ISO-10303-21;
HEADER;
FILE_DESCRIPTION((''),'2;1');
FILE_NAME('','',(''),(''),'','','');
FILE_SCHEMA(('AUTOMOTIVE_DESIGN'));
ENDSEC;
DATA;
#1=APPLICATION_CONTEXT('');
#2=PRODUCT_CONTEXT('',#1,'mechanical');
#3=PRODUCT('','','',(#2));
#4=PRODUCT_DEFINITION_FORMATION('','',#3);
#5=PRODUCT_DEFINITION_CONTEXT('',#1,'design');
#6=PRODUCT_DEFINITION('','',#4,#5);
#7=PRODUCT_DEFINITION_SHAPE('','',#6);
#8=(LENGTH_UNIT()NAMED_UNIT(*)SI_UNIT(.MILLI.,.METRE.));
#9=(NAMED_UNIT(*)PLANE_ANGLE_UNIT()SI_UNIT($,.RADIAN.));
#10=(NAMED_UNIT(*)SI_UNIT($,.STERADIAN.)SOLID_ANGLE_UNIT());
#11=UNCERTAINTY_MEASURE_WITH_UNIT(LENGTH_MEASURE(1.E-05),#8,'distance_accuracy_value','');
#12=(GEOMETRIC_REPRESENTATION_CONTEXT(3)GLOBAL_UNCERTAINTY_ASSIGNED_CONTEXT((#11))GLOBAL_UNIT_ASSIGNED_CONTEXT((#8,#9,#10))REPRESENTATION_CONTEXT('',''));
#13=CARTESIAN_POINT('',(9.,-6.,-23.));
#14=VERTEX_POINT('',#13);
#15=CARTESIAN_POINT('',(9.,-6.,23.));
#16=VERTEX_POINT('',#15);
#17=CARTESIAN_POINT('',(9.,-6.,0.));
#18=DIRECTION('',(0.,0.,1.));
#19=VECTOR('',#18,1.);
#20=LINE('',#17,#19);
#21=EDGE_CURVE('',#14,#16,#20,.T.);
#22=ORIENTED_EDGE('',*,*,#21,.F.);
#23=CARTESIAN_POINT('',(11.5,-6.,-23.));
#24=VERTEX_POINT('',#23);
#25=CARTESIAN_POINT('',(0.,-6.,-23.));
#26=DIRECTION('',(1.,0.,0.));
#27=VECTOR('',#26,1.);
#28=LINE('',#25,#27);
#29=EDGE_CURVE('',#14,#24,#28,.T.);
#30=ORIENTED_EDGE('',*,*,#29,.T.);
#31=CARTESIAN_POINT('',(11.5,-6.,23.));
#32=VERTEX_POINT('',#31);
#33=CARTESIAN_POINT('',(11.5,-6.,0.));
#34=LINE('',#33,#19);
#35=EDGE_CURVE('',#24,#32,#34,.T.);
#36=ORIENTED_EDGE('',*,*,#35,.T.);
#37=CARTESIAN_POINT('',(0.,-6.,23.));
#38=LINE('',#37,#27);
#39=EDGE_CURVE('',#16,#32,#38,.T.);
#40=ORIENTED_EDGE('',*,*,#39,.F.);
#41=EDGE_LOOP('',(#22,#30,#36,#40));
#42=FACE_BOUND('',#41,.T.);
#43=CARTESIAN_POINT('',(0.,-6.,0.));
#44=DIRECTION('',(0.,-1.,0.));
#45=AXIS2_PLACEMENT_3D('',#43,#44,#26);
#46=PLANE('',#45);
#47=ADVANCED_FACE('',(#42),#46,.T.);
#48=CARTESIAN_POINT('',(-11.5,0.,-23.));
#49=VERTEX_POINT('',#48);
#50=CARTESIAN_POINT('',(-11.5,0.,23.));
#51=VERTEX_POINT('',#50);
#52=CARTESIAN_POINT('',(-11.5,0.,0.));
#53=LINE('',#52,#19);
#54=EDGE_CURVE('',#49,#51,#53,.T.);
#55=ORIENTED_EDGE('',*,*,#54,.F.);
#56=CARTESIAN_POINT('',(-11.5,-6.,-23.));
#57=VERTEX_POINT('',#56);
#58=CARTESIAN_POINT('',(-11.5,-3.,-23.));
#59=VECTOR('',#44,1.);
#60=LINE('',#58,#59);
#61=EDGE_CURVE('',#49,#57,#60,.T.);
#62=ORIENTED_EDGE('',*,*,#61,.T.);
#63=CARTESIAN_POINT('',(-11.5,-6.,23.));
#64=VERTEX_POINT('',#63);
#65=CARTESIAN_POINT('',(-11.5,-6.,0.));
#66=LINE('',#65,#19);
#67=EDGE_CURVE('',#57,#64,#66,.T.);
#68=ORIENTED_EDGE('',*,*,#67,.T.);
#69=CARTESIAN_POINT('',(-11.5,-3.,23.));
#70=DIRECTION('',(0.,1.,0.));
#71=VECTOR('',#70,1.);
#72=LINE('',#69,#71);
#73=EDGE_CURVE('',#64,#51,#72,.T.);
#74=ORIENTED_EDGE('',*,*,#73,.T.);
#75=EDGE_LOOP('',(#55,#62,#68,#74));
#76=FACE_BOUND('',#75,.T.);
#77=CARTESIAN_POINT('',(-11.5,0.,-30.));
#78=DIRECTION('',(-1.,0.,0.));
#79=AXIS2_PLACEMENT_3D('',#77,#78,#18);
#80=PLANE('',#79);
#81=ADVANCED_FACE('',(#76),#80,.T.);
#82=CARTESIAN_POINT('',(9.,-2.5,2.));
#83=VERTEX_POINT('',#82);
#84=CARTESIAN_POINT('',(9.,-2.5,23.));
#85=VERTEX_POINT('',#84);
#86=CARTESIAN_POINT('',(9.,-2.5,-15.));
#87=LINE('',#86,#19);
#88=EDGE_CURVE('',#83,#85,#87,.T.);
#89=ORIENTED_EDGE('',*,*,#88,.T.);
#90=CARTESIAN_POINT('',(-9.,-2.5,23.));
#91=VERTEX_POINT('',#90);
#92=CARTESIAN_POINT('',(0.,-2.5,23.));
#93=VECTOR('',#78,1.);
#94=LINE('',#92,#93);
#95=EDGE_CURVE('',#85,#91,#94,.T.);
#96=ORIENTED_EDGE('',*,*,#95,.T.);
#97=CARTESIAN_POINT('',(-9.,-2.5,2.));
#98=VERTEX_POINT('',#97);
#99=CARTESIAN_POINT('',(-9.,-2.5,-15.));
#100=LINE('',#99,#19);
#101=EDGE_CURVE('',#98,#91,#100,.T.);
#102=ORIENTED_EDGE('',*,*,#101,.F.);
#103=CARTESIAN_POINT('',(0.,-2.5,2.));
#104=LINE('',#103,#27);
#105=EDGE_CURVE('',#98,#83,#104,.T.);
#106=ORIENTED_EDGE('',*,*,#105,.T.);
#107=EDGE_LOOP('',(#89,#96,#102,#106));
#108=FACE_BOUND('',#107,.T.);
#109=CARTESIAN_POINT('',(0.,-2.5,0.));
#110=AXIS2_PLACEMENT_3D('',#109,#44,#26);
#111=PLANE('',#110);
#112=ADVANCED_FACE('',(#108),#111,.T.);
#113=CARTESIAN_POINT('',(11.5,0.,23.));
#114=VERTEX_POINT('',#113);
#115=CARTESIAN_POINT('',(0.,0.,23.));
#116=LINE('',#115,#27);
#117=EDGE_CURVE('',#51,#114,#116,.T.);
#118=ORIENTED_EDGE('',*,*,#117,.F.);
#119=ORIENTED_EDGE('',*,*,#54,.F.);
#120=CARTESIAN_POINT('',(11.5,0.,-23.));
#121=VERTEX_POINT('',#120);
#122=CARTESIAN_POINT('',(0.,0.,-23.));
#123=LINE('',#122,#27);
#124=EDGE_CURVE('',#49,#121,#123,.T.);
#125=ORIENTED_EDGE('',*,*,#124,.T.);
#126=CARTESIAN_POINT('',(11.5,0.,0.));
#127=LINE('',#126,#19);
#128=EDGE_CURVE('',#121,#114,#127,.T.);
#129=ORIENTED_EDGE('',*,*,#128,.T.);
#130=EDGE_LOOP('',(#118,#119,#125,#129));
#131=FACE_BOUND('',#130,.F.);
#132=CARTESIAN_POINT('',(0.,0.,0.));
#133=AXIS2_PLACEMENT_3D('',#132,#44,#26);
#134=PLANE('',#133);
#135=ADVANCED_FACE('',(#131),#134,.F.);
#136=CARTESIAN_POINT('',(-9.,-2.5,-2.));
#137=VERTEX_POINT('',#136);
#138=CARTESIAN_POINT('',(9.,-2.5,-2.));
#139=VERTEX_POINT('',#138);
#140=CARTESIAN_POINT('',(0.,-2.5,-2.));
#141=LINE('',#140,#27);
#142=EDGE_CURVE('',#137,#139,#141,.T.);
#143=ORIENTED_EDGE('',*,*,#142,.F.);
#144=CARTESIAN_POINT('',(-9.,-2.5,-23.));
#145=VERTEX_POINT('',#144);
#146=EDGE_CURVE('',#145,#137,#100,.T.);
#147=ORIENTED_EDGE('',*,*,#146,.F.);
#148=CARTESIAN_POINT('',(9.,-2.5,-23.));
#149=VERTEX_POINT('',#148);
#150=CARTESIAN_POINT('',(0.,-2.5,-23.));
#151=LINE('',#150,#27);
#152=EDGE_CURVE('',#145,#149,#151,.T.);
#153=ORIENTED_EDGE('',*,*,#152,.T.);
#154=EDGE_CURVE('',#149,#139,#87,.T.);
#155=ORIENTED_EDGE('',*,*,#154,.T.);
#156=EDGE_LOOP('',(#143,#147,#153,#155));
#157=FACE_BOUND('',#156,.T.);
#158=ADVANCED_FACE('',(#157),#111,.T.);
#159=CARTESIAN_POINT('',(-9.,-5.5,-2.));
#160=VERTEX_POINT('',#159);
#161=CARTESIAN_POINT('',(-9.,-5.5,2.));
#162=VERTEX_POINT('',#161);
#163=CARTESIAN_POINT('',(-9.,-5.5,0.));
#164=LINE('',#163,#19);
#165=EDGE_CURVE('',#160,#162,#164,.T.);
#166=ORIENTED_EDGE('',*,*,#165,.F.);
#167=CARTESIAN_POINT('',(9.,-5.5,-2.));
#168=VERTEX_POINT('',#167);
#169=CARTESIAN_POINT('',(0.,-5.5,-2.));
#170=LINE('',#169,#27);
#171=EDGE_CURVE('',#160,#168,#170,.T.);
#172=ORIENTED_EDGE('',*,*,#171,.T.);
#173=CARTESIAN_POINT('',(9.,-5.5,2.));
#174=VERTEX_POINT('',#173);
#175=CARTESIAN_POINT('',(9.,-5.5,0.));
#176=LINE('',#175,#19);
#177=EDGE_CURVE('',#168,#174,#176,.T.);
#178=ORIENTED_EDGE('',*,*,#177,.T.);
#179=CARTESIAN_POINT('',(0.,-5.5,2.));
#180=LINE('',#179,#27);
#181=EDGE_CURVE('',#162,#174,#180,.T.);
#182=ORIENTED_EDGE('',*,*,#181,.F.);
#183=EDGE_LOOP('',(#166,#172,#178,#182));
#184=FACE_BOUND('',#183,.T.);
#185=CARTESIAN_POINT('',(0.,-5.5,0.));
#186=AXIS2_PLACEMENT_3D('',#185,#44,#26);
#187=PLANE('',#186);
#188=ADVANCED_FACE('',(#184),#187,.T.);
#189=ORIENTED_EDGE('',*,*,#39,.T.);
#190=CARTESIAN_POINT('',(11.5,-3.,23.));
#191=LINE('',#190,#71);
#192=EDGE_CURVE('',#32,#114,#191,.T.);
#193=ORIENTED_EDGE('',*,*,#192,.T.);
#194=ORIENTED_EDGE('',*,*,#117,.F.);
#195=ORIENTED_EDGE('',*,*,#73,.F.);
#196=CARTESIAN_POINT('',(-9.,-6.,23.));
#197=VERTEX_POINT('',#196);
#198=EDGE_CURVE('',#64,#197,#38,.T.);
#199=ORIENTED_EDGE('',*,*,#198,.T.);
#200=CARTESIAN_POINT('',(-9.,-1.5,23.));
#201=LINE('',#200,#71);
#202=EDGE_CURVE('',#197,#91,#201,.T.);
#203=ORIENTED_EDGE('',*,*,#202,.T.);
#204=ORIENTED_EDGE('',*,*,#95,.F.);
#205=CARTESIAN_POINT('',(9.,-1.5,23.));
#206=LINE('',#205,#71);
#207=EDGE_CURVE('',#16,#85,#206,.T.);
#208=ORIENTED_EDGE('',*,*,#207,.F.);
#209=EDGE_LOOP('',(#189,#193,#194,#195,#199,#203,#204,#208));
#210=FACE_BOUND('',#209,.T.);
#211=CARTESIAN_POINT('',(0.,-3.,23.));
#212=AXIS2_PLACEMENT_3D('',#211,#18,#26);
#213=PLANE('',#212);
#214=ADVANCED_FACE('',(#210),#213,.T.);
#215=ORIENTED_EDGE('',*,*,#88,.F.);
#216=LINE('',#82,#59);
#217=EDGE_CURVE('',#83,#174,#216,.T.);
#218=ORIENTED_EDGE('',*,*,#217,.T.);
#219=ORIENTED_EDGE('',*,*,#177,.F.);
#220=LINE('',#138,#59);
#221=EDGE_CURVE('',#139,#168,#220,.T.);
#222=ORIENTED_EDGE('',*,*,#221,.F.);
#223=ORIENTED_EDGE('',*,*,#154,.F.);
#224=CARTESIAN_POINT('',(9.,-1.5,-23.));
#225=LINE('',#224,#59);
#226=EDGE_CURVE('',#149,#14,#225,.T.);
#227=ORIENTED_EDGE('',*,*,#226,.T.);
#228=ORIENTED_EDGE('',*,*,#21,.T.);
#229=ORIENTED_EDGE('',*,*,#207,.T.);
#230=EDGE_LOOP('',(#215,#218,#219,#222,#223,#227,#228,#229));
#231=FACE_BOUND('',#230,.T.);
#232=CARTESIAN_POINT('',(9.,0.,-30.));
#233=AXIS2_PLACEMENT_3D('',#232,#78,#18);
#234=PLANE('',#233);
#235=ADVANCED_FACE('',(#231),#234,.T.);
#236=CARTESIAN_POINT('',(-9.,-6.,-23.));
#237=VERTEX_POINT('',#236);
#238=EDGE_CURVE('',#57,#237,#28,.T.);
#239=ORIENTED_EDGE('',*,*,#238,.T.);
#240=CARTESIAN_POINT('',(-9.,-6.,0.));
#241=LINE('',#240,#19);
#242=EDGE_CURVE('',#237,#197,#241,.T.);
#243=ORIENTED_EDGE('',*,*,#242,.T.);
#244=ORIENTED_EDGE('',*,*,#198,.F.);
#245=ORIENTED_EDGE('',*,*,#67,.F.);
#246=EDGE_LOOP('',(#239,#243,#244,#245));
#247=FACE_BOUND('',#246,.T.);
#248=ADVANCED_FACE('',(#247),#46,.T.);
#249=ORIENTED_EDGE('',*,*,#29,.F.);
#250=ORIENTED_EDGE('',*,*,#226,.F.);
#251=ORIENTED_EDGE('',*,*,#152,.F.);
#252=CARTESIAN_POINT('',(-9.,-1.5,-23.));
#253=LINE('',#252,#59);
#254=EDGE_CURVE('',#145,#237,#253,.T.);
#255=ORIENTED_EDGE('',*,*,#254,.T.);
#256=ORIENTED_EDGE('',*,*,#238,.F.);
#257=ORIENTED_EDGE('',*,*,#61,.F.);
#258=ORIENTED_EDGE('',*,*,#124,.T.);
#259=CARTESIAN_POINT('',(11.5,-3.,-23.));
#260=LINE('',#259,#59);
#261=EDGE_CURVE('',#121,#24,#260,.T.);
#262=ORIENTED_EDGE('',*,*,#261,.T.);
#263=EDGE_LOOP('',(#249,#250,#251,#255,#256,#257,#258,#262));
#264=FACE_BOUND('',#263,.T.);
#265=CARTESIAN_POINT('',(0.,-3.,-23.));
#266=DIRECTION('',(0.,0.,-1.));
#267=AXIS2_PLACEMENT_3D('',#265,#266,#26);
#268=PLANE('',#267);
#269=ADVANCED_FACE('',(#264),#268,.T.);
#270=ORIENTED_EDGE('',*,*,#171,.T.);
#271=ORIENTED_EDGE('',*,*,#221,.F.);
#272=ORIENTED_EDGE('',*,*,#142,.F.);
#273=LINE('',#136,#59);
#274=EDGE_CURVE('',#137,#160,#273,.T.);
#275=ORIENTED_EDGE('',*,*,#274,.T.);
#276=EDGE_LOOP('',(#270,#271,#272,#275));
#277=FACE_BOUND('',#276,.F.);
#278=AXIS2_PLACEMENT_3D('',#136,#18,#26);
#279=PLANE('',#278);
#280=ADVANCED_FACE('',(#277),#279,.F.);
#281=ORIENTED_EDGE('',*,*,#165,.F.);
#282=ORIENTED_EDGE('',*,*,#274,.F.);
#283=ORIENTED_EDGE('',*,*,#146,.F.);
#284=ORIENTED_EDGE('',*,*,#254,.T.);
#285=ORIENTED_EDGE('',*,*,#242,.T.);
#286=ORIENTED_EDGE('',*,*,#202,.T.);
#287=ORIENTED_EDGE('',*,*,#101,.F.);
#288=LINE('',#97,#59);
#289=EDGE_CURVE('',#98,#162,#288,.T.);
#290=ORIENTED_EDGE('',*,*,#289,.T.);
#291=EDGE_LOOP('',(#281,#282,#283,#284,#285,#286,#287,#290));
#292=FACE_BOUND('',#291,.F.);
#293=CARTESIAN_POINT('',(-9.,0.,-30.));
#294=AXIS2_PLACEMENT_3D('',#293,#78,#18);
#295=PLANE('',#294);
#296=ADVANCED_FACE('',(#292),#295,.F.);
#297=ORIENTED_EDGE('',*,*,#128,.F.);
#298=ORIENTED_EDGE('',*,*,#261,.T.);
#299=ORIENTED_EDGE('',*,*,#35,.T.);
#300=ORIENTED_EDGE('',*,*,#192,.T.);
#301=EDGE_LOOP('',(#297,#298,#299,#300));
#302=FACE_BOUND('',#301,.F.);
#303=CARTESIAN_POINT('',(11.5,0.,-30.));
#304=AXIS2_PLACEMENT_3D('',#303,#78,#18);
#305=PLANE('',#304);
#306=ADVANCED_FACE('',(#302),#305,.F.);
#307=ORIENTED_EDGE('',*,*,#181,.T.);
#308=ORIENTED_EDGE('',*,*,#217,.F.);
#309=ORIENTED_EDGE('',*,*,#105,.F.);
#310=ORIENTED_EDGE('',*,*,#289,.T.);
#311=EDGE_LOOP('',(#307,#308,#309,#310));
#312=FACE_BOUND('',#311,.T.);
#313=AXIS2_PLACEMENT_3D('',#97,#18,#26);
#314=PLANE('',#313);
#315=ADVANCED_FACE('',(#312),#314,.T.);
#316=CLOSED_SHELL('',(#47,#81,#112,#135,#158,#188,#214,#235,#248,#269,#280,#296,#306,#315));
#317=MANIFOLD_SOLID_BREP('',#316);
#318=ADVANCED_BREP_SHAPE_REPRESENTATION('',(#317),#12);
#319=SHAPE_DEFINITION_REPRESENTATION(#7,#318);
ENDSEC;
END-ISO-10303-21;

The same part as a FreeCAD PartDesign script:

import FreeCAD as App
import Part
import Sketcher
Q = App.Units.Quantity


def faces_at(feature, points):
    """Names of the faces that lie closest to the given points."""
    faces = feature.Shape.Faces
    near = lambda p: min(range(len(faces)), key=lambda i: faces[i].distToShape(Part.Vertex(*p))[0])
    return sorted({f"Face{near(p) + 1}" for p in points})

doc = App.newDocument("Part")
body = doc.addObject("PartDesign::Body", "Body")

sketch1 = body.newObject("Sketcher::SketchObject", "Sketch")
sketch1.AttachmentSupport = (doc.getObject("XZ_Plane"), [""])
sketch1.MapMode = "FlatFace"
sketch1.addGeometry(Part.LineSegment(App.Vector(-11.5, 30, 0), App.Vector(-11.5, -30, 0)), False)
sketch1.addGeometry(Part.LineSegment(App.Vector(-11.5, -30, 0), App.Vector(11.5, -30, 0)), False)
sketch1.addGeometry(Part.LineSegment(App.Vector(11.5, -30, 0), App.Vector(11.5, 30, 0)), False)
sketch1.addGeometry(Part.LineSegment(App.Vector(11.5, 30, 0), App.Vector(-11.5, 30, 0)), False)
sketch1.addConstraint(Sketcher.Constraint("Coincident", 0, 2, 1, 1))
sketch1.addConstraint(Sketcher.Constraint("Coincident", 1, 2, 2, 1))
sketch1.addConstraint(Sketcher.Constraint("Coincident", 2, 2, 3, 1))
sketch1.addConstraint(Sketcher.Constraint("Coincident", 3, 2, 0, 1))
sketch1.addConstraint(Sketcher.Constraint("Vertical", 0))
sketch1.addConstraint(Sketcher.Constraint("Horizontal", 1))
sketch1.addConstraint(Sketcher.Constraint("Vertical", 2))
sketch1.addConstraint(Sketcher.Constraint("Horizontal", 3))
sketch1.addConstraint(Sketcher.Constraint("Symmetric", 0, 2, 2, 2, -1, 1))
sketch1.addConstraint(Sketcher.Constraint("DistanceX", 1, 1, 1, 2, Q("23 mm")))
sketch1.addConstraint(Sketcher.Constraint("DistanceY", 0, 2, 0, 1, Q("60 mm")))
pad1 = body.newObject("PartDesign::Pad", "Pad")
pad1.Profile = sketch1
pad1.Length = 6
doc.recompute()

thickness = body.newObject("PartDesign::Thickness", "Thickness")
thickness.Base = (pad1, faces_at(pad1, [(0, -6, 0)]))
thickness.Value = 2.5
thickness.Reversed = True
thickness.Join = "Arc"

sketch2 = body.newObject("Sketcher::SketchObject", "Sketch001")
sketch2.AttachmentSupport = (doc.getObject("XY_Plane"), [""])
sketch2.MapMode = "FlatFace"
sketch2.AttachmentOffset = App.Placement(App.Vector(0, 0, -30), App.Rotation())
sketch2.addGeometry(Part.LineSegment(App.Vector(-11.5, -6, 0), App.Vector(-11.5, 0, 0)), False)
sketch2.addGeometry(Part.LineSegment(App.Vector(-11.5, 0, 0), App.Vector(11.5, 0, 0)), False)
sketch2.addGeometry(Part.LineSegment(App.Vector(11.5, 0, 0), App.Vector(11.5, -6, 0)), False)
sketch2.addGeometry(Part.LineSegment(App.Vector(11.5, -6, 0), App.Vector(-11.5, -6, 0)), False)
sketch2.addConstraint(Sketcher.Constraint("Coincident", 0, 2, 1, 1))
sketch2.addConstraint(Sketcher.Constraint("Coincident", 1, 2, 2, 1))
sketch2.addConstraint(Sketcher.Constraint("Coincident", 2, 2, 3, 1))
sketch2.addConstraint(Sketcher.Constraint("Coincident", 3, 2, 0, 1))
sketch2.addConstraint(Sketcher.Constraint("Vertical", 0))
sketch2.addConstraint(Sketcher.Constraint("Horizontal", 1))
sketch2.addConstraint(Sketcher.Constraint("Vertical", 2))
sketch2.addConstraint(Sketcher.Constraint("Horizontal", 3))
sketch2.addConstraint(Sketcher.Constraint("Symmetric", 0, 2, 1, 2, -1, 1))
sketch2.addConstraint(Sketcher.Constraint("DistanceX", 1, 1, 1, 2, Q("23 mm")))
sketch2.addConstraint(Sketcher.Constraint("DistanceY", 0, 1, 0, 2, Q("6 mm")))
pocket1 = body.newObject("PartDesign::Pocket", "Pocket")
pocket1.Profile = sketch2
pocket1.Length = 7
pocket1.Reversed = True

sketch3 = body.newObject("Sketcher::SketchObject", "Sketch002")
sketch3.AttachmentSupport = (doc.getObject("XY_Plane"), [""])
sketch3.MapMode = "FlatFace"
sketch3.AttachmentOffset = App.Placement(App.Vector(0, 0, 30), App.Rotation())
sketch3.addGeometry(Part.LineSegment(App.Vector(-11.5, 0, 0), App.Vector(-11.5, -6, 0)), False)
sketch3.addGeometry(Part.LineSegment(App.Vector(-11.5, -6, 0), App.Vector(11.5, -6, 0)), False)
sketch3.addGeometry(Part.LineSegment(App.Vector(11.5, -6, 0), App.Vector(11.5, 0, 0)), False)
sketch3.addGeometry(Part.LineSegment(App.Vector(11.5, 0, 0), App.Vector(-11.5, 0, 0)), False)
sketch3.addConstraint(Sketcher.Constraint("Coincident", 0, 2, 1, 1))
sketch3.addConstraint(Sketcher.Constraint("Coincident", 1, 2, 2, 1))
sketch3.addConstraint(Sketcher.Constraint("Coincident", 2, 2, 3, 1))
sketch3.addConstraint(Sketcher.Constraint("Coincident", 3, 2, 0, 1))
sketch3.addConstraint(Sketcher.Constraint("Vertical", 0))
sketch3.addConstraint(Sketcher.Constraint("Horizontal", 1))
sketch3.addConstraint(Sketcher.Constraint("Vertical", 2))
sketch3.addConstraint(Sketcher.Constraint("Horizontal", 3))
sketch3.addConstraint(Sketcher.Constraint("Symmetric", 2, 2, 3, 2, -1, 1))
sketch3.addConstraint(Sketcher.Constraint("DistanceX", 1, 1, 1, 2, Q("23 mm")))
sketch3.addConstraint(Sketcher.Constraint("DistanceY", 0, 2, 0, 1, Q("6 mm")))
pocket2 = body.newObject("PartDesign::Pocket", "Pocket001")
pocket2.Profile = sketch3
pocket2.Length = 7

sketch4 = body.newObject("Sketcher::SketchObject", "Sketch003")
sketch4.AttachmentSupport = (doc.getObject("XZ_Plane"), [""])
sketch4.MapMode = "FlatFace"
sketch4.AttachmentOffset = App.Placement(App.Vector(0, 0, 2.5), App.Rotation())
sketch4.addGeometry(Part.LineSegment(App.Vector(-9, 2, 0), App.Vector(-9, -2, 0)), False)
sketch4.addGeometry(Part.LineSegment(App.Vector(-9, -2, 0), App.Vector(9, -2, 0)), False)
sketch4.addGeometry(Part.LineSegment(App.Vector(9, -2, 0), App.Vector(9, 2, 0)), False)
sketch4.addGeometry(Part.LineSegment(App.Vector(9, 2, 0), App.Vector(-9, 2, 0)), False)
sketch4.addConstraint(Sketcher.Constraint("Coincident", 0, 2, 1, 1))
sketch4.addConstraint(Sketcher.Constraint("Coincident", 1, 2, 2, 1))
sketch4.addConstraint(Sketcher.Constraint("Coincident", 2, 2, 3, 1))
sketch4.addConstraint(Sketcher.Constraint("Coincident", 3, 2, 0, 1))
sketch4.addConstraint(Sketcher.Constraint("Vertical", 0))
sketch4.addConstraint(Sketcher.Constraint("Horizontal", 1))
sketch4.addConstraint(Sketcher.Constraint("Vertical", 2))
sketch4.addConstraint(Sketcher.Constraint("Horizontal", 3))
sketch4.addConstraint(Sketcher.Constraint("Symmetric", 0, 2, 2, 2, -1, 1))
sketch4.addConstraint(Sketcher.Constraint("DistanceX", 1, 1, 1, 2, Q("18 mm")))
sketch4.addConstraint(Sketcher.Constraint("DistanceY", 0, 2, 0, 1, Q("4 mm")))
pad2 = body.newObject("PartDesign::Pad", "Pad001")
pad2.Profile = sketch4
pad2.Length = 3

doc.recompute()
